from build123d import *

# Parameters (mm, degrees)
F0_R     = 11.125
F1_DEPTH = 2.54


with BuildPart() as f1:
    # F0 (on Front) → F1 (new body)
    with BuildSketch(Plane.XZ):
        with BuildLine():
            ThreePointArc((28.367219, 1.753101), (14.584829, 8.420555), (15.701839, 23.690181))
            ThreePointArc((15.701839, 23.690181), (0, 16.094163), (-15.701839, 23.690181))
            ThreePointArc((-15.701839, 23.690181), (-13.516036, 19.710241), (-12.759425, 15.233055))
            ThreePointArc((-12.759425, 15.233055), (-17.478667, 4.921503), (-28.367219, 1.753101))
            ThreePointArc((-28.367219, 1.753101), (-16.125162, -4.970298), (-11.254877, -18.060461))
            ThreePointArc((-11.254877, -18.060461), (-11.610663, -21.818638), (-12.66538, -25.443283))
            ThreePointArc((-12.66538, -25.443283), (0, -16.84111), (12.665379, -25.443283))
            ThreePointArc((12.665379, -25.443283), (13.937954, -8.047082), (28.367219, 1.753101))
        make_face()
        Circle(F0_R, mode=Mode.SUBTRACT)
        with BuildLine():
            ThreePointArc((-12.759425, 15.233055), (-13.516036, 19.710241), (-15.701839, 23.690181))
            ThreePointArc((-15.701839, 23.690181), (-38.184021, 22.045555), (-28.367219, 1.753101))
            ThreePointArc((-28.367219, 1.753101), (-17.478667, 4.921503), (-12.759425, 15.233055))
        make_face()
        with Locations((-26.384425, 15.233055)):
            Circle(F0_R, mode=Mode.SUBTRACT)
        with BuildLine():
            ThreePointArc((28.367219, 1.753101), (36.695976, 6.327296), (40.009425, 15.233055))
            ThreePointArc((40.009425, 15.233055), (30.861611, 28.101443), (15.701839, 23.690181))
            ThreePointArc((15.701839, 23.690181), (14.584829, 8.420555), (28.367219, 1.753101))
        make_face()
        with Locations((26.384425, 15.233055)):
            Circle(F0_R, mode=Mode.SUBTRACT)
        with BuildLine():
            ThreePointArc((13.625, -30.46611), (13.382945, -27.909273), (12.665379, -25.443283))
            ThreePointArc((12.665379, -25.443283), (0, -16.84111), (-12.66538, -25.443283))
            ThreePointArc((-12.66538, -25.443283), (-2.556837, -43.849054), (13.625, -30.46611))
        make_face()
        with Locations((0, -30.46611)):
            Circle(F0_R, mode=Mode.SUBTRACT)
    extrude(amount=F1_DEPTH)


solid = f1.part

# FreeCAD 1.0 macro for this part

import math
import FreeCAD as App
import Part
import Sketcher

V = App.Vector

doc = App.newDocument("Part")
params = doc.addObject("Spreadsheet::Sheet", "Params")
for row, (alias, value) in enumerate([
    ("pad1_length", "0.1 in"),
], start=1):
    params.set(f"A{row}", alias)
    params.set(f"B{row}", "=" + value)
    params.setAlias(f"B{row}", alias)

body = doc.addObject("PartDesign::Body", "Body")

sketch1 = body.newObject("Sketcher::SketchObject", "Sketch")
sketch1.AttachmentSupport = (doc.getObject("XZ_Plane"), [""])
sketch1.MapMode = "FlatFace"
sketch1.addGeometry([
    Part.ArcOfCircle(Part.Circle(V(31.281636, -18.060462, 0), V(0, 0, 1), 20.026759), math.radians(98.367749), math.radians(201.632249)),
    Part.ArcOfCircle(Part.Circle(V(26.384425, 15.233055, 0), V(0, 0, 1), 13.625), math.radians(-81.63225), math.radians(0)),
    Part.ArcOfCircle(Part.Circle(V(26.384425, 15.233054, 0), V(0, 0, 1), 13.625), math.radians(0.000004), math.radians(141.632251)),
    Part.ArcOfCircle(Part.Circle(V(0, 36.120922, 0), V(0, 0, 1), 20.026759), math.radians(-141.63225), math.radians(-38.36775)),
    Part.ArcOfCircle(Part.Circle(V(-26.384425, 15.233055, 0), V(0, 0, 1), 13.625), math.radians(38.367746), math.radians(261.63225)),
    Part.ArcOfCircle(Part.Circle(V(-31.281636, -18.060461, 0), V(0, 0, 1), 20.026759), math.radians(0), math.radians(81.632252)),
    Part.ArcOfCircle(Part.Circle(V(-31.28162, -18.060462, 0), V(0, 0, 1), 20.026743), math.radians(-21.632266), math.radians(0.000003)),
    Part.ArcOfCircle(Part.Circle(V(0, -30.466109, 0), V(0, 0, 1), 13.625), math.radians(158.367753), math.radians(359.999996)),
    Part.ArcOfCircle(Part.Circle(V(0.000024, -30.466106, 0), V(0, 0, 1), 13.624976), math.radians(-0.000016), math.radians(21.632274)),
    Part.Circle(V(0, -30.46611, 0), V(0, 0, 1), 11.125),
    Part.Circle(V(-26.384425, 15.233055, 0), V(0, 0, 1), 11.125),
    Part.Circle(V(0, 0, 0), V(0, 0, 1), 11.125),
    Part.Circle(V(26.384425, 15.233055, 0), V(0, 0, 1), 11.125),
], False)
sketch1.addConstraint([
    Sketcher.Constraint("Coincident", 0, 1, 1, 1),
    Sketcher.Constraint("Coincident", 1, 2, 2, 1),
    Sketcher.Constraint("Coincident", 2, 2, 3, 2),
    Sketcher.Constraint("Coincident", 3, 1, 4, 1),
    Sketcher.Constraint("Coincident", 4, 2, 5, 2),
    Sketcher.Constraint("Coincident", 5, 1, 6, 2),
    Sketcher.Constraint("Coincident", 6, 1, 7, 1),
    Sketcher.Constraint("Coincident", 7, 2, 8, 1),
    Sketcher.Constraint("Coincident", 8, 2, 0, 2),
    Sketcher.Constraint("Coincident", 11, 3, -1, 1),
    Sketcher.Constraint("Coincident", 2, 3, 1, 3),
    Sketcher.Constraint("Coincident", 9, 3, 7, 3),
    Sketcher.Constraint("Coincident", 10, 3, 4, 3),
    Sketcher.Constraint("Coincident", 12, 3, 1, 3),
    Sketcher.Constraint("PointOnObject", 3, 3, -2),
    Sketcher.Constraint("PointOnObject", 7, 3, -2),
    Sketcher.Constraint("Diameter", 9, 22.25),
    Sketcher.Constraint("Diameter", 10, 22.25),
    Sketcher.Constraint("Diameter", 11, 22.25),
    Sketcher.Constraint("Diameter", 12, 22.25),
    Sketcher.Constraint("Radius", 1, 13.625),
    Sketcher.Constraint("Radius", 4, 13.625),
    Sketcher.Constraint("Radius", 7, 13.625),
    Sketcher.Constraint("Radius", 0, 20.026759),
    Sketcher.Constraint("Radius", 3, 20.026759),
    Sketcher.Constraint("Radius", 5, 20.026759),
    Sketcher.Constraint("Radius", 6, 20.026743),
    Sketcher.Constraint("Radius", 8, 13.624976),
    Sketcher.Constraint("DistanceY", -1, 1, 0, 1, 1.753101),
    Sketcher.Constraint("DistanceY", -1, 1, 4, 2, 1.753101),
    Sketcher.Constraint("DistanceX", 8, 3, 2, 3, 26.384401),
    Sketcher.Constraint("DistanceX", 6, 3, 4, 2, 2.914401),
    Sketcher.Constraint("DistanceX", 5, 1, 8, 3, 11.254901),
    Sketcher.Constraint("DistanceY", 0, 3, -1, 1, 18.060462),
    Sketcher.Constraint("DistanceY", -1, 1, 3, 3, 36.120922),
    Sketcher.Constraint("DistanceY", 7, 3, -1, 1, 30.466109),
    Sketcher.Constraint("DistanceX", -1, 1, 2, 2, 15.701839),
    Sketcher.Constraint("DistanceX", 3, 1, -1, 1, 15.701839),
    Sketcher.Constraint("DistanceY", 5, 1, -1, 1, 18.060461),
    Sketcher.Constraint("DistanceX", 6, 1, -1, 1, 12.66538),
    Sketcher.Constraint("DistanceY", 7, 2, -1, 1, 30.46611),
    Sketcher.Constraint("DistanceX", -1, 1, 8, 2, 12.665379),
    Sketcher.Constraint("DistanceY", -1, 1, 1, 2, 15.233055),
])
pad1 = body.newObject("PartDesign::Pad", "Pad")
pad1.Profile = sketch1
pad1.setExpression("Length", "Params.pad1_length")

doc.recompute()
